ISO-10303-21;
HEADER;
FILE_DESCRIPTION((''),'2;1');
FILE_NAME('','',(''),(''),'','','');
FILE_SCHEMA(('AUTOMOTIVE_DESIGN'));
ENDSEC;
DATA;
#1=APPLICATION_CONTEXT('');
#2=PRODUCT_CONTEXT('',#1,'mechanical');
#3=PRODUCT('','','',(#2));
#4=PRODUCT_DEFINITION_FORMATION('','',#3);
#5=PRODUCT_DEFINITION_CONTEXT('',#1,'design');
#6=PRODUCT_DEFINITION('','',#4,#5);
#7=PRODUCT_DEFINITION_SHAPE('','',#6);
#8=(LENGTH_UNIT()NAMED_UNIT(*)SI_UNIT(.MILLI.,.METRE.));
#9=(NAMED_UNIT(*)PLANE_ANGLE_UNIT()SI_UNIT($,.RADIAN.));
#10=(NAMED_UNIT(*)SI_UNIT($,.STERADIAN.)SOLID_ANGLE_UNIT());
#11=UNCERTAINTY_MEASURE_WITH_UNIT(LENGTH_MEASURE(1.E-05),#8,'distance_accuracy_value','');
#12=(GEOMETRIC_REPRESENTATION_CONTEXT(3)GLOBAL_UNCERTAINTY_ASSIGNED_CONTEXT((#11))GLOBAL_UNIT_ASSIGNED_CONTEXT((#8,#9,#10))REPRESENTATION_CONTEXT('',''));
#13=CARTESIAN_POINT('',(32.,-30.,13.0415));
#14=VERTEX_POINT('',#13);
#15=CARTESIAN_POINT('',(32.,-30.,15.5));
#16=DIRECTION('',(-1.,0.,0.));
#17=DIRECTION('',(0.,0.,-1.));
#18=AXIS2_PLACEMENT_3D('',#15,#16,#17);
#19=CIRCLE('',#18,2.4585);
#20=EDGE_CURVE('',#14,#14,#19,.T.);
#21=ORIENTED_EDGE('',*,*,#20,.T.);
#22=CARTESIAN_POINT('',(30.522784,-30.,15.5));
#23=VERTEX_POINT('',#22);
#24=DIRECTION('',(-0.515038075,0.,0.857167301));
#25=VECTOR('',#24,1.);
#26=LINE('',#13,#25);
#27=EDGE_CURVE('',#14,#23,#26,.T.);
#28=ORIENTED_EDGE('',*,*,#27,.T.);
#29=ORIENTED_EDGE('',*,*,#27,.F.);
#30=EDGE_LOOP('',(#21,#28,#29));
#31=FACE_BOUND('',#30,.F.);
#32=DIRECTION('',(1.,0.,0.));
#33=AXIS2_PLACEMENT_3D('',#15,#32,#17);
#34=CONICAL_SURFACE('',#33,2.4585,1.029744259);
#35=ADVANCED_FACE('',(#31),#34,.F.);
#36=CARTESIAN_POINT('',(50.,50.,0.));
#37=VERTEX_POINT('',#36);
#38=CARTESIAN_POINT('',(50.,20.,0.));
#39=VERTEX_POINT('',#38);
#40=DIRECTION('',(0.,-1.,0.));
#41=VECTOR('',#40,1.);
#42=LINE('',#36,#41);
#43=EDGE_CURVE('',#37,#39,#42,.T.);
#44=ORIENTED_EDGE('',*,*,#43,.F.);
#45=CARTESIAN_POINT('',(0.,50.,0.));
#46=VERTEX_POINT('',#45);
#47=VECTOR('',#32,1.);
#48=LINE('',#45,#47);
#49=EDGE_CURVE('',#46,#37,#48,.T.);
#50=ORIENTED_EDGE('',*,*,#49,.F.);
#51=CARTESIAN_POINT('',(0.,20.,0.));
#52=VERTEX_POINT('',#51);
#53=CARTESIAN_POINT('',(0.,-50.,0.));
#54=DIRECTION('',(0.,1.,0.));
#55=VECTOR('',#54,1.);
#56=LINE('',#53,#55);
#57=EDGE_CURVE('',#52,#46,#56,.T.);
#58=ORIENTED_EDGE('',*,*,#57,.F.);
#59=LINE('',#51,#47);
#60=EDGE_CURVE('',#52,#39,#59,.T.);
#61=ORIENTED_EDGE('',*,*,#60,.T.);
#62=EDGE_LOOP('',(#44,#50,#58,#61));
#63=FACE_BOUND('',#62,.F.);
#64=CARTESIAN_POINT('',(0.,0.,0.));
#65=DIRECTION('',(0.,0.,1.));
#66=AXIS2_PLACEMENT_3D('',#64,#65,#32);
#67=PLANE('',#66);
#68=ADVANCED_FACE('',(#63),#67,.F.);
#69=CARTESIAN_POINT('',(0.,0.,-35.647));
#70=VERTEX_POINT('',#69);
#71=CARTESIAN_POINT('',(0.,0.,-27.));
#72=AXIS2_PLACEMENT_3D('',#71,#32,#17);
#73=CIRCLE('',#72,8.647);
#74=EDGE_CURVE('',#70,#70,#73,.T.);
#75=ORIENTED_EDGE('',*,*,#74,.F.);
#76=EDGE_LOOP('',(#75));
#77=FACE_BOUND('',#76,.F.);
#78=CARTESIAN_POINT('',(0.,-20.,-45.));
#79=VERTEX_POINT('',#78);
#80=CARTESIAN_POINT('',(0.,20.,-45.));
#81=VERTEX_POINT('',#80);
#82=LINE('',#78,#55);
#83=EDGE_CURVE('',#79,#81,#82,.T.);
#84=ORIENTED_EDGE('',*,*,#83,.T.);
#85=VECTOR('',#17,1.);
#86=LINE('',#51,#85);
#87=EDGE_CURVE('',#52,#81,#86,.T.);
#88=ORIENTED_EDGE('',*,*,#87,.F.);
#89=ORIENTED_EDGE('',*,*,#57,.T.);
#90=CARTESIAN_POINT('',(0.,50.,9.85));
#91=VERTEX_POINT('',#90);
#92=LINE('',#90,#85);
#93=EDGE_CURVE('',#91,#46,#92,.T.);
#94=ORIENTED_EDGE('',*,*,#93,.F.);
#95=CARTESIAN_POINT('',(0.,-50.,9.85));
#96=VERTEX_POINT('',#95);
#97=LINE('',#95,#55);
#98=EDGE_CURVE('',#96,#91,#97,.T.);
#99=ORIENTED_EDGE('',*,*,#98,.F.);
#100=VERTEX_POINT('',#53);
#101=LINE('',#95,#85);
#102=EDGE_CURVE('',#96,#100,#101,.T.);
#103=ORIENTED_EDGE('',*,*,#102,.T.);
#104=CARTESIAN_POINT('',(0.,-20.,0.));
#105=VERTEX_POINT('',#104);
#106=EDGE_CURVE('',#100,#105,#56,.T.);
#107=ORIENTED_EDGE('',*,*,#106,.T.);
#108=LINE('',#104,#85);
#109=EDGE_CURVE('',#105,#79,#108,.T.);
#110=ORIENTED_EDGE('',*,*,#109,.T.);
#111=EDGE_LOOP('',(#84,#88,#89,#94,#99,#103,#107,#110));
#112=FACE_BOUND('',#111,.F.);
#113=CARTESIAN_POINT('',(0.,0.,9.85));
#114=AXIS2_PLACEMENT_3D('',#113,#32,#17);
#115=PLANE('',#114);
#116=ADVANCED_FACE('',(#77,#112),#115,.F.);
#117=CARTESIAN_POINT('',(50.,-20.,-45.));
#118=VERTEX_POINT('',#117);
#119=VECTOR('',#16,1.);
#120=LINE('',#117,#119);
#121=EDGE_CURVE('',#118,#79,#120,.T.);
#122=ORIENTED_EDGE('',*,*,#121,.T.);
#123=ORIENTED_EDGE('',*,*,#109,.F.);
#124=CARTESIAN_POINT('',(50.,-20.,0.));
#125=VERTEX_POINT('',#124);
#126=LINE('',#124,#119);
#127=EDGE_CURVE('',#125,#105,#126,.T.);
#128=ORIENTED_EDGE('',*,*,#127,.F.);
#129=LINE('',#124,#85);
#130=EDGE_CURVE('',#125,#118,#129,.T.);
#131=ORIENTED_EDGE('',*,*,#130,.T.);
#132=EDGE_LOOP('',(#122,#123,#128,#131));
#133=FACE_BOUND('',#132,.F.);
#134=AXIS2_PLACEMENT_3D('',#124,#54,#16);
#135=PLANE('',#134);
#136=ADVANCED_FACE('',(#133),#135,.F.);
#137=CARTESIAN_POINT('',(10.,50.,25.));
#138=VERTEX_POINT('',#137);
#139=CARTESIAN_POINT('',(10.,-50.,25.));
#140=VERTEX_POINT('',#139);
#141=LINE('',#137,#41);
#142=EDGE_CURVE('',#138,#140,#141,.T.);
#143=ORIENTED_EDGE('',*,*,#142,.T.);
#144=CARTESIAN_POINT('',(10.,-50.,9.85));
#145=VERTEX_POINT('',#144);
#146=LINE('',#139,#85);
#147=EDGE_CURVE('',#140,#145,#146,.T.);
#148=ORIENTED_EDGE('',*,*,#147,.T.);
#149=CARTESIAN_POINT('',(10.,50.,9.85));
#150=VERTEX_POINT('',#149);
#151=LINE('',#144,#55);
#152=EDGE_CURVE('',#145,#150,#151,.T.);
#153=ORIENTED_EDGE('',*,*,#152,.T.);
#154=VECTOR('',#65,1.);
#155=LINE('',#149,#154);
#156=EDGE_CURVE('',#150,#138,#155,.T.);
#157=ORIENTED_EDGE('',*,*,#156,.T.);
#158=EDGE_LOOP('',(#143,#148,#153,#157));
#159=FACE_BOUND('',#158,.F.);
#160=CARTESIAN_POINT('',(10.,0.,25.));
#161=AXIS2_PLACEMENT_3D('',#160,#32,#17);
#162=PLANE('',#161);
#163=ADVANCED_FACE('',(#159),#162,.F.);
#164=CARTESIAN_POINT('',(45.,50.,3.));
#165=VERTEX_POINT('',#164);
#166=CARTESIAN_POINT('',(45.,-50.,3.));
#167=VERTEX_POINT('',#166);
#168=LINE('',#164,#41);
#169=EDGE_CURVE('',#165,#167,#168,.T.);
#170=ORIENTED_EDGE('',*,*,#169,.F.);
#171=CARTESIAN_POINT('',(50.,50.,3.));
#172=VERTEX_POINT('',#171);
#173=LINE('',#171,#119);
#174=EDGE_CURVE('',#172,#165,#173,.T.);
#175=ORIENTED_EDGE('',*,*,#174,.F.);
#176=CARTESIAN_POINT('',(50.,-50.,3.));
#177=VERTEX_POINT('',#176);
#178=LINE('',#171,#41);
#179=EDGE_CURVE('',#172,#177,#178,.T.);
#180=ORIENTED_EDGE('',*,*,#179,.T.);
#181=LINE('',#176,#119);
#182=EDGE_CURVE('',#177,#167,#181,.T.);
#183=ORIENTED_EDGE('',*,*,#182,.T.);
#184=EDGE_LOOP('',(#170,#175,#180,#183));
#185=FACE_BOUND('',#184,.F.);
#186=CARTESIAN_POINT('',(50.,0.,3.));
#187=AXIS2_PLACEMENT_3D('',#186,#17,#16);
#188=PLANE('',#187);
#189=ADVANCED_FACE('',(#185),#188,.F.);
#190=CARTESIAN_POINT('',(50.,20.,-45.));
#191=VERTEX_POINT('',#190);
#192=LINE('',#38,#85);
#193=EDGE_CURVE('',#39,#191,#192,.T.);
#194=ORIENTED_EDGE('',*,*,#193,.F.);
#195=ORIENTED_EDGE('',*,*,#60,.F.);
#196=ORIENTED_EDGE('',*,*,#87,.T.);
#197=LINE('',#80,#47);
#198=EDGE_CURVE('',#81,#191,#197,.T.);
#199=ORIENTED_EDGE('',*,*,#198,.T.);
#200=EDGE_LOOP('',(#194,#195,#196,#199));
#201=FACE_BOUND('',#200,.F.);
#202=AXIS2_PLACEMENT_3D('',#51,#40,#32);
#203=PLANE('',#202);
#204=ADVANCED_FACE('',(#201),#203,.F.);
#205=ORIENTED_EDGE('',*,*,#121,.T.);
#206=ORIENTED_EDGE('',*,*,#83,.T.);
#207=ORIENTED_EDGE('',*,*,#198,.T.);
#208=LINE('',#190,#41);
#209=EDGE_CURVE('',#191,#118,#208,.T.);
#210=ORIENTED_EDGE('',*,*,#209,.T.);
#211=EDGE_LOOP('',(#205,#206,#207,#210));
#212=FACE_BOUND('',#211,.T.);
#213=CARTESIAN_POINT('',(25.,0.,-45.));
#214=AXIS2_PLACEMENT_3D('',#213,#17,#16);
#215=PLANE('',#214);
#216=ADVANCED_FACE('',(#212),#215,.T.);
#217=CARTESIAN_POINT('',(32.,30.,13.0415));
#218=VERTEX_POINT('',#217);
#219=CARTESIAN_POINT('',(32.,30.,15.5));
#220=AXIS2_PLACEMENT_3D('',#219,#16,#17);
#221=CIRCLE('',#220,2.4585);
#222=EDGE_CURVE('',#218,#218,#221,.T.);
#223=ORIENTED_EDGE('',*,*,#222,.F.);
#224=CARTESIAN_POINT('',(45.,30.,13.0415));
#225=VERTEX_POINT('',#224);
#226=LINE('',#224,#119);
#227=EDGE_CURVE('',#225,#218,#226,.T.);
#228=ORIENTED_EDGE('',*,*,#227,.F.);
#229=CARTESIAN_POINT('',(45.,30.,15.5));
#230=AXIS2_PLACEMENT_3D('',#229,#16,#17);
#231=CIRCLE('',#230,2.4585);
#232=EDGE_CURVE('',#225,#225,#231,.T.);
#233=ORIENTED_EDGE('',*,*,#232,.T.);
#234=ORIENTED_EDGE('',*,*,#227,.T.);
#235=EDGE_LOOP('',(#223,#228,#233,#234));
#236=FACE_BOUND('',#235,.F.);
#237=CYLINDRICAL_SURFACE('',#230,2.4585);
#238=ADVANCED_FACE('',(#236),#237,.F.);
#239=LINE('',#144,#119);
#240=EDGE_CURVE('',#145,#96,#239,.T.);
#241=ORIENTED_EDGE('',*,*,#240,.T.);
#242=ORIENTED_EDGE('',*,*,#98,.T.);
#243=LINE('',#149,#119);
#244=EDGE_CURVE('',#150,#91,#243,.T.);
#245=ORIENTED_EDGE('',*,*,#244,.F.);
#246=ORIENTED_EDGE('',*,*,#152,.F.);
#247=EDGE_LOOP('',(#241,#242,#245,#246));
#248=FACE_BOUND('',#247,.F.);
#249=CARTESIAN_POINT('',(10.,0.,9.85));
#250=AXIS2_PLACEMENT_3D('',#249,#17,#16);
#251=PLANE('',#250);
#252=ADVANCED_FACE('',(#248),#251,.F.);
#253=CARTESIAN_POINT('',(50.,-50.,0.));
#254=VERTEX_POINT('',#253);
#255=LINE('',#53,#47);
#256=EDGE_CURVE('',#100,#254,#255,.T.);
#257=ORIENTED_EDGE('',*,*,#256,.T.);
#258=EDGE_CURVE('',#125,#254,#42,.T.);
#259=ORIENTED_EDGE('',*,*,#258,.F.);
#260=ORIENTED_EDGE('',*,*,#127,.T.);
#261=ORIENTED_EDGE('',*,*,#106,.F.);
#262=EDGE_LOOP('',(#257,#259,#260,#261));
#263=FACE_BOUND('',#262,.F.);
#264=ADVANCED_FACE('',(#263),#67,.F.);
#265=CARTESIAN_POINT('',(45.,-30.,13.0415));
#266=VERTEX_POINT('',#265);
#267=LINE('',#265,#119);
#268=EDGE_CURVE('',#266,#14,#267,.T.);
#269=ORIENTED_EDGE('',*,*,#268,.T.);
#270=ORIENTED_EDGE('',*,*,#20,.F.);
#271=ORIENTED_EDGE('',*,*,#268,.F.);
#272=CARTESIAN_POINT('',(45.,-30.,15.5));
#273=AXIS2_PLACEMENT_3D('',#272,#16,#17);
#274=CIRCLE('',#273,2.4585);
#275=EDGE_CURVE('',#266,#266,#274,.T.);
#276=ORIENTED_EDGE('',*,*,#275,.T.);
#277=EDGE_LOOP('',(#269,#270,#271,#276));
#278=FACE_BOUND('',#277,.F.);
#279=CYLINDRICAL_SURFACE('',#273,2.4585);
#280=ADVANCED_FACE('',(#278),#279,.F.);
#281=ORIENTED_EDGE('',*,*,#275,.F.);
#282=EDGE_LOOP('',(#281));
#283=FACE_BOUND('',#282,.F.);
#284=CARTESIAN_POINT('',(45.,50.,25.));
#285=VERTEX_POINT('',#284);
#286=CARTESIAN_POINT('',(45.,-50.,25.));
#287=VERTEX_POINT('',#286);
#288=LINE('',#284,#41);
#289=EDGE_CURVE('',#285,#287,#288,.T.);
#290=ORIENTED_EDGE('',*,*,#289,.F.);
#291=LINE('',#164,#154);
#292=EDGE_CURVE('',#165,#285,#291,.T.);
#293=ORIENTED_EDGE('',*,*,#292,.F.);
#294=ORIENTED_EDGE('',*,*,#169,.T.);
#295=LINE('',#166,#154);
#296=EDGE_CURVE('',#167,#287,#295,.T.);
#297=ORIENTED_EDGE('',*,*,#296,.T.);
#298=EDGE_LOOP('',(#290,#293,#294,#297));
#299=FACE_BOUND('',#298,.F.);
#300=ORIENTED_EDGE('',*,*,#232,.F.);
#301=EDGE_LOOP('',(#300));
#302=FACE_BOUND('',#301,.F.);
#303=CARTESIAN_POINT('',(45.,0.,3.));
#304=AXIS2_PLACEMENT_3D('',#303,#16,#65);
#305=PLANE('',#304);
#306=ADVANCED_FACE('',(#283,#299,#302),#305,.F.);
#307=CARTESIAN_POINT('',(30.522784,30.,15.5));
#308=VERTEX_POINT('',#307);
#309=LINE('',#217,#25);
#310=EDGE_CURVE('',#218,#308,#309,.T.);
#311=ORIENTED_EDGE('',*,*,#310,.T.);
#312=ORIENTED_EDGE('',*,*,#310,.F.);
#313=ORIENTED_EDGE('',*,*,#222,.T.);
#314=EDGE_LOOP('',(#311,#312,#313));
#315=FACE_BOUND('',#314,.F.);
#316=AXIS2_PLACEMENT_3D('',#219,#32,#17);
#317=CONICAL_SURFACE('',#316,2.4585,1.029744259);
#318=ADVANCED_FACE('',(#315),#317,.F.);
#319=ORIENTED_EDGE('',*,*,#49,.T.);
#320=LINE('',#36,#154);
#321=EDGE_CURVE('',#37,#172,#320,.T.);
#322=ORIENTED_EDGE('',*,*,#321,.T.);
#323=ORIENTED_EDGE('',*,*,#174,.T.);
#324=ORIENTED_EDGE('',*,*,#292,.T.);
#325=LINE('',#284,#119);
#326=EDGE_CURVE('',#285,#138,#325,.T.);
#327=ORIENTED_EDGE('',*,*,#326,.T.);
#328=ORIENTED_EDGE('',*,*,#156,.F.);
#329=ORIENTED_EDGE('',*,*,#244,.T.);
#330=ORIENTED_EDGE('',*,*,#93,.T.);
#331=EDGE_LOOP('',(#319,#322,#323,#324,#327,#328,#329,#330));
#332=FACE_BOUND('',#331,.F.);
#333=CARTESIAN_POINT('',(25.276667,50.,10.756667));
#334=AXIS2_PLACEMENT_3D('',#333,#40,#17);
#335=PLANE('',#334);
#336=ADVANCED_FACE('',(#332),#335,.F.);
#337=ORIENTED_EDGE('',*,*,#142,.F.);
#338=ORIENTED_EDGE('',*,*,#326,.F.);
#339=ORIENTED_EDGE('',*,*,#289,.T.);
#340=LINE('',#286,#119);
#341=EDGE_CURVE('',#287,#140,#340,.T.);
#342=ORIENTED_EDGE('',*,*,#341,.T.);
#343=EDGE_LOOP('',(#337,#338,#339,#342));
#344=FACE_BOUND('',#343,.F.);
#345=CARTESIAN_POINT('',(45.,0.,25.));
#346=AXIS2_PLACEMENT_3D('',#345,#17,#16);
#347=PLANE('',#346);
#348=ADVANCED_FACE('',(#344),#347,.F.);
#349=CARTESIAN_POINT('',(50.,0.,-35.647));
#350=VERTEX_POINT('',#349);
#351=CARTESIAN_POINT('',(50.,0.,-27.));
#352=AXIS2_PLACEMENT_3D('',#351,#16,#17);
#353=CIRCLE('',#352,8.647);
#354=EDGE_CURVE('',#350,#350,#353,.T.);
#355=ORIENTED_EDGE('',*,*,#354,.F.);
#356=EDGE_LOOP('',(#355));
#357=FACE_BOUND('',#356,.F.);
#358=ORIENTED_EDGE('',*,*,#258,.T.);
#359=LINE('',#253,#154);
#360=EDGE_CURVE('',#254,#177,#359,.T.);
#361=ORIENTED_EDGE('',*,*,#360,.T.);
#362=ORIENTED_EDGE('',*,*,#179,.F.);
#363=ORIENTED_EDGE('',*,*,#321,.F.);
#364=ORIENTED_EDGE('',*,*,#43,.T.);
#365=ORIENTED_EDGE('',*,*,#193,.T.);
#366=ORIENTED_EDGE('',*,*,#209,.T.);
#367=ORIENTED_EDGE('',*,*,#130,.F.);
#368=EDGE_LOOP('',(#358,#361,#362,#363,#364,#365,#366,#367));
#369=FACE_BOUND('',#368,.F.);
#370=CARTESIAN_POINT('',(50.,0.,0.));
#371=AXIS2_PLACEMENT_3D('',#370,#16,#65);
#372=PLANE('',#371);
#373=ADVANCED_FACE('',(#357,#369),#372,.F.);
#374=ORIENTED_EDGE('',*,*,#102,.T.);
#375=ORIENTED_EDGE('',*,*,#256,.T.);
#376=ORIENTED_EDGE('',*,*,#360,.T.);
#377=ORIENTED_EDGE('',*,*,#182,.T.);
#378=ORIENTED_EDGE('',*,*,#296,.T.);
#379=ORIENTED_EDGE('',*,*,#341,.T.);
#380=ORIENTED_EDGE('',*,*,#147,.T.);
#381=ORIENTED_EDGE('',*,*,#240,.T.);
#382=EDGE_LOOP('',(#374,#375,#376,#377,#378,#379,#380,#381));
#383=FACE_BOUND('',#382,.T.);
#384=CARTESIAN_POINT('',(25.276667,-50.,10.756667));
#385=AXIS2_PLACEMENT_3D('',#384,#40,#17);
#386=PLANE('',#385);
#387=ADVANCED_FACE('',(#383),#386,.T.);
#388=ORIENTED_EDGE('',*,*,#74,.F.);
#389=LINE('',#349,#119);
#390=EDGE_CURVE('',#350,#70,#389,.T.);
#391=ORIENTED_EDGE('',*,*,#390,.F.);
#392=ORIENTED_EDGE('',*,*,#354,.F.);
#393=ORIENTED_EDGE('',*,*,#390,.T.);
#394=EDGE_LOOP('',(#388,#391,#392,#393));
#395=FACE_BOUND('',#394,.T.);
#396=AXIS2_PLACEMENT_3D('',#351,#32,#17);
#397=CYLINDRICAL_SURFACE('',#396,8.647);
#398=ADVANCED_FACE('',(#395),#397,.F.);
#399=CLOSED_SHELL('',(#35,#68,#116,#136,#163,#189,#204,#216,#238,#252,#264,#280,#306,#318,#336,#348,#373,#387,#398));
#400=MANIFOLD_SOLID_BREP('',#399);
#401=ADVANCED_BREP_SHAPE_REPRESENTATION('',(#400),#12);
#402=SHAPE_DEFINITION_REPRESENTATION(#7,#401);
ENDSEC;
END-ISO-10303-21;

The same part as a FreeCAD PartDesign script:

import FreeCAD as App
import Part
import Sketcher

V = App.Vector

doc = App.newDocument("Part")
body = doc.addObject("PartDesign::Body", "Body")

# Sketch on XZ plane
sketch1 = body.newObject("Sketcher::SketchObject", "Sketch")
sketch1.AttachmentSupport = (doc.getObject("XZ_Plane"), [""])
sketch1.MapMode = "FlatFace"
sketch1.addGeometry([
    Part.LineSegment(V(0, 9.8, 0), V(0, 0, 0)),  # 0
    Part.LineSegment(V(0, 0, 0), V(50, 0, 0)),  # 1
    Part.LineSegment(V(50, 0, 0), V(50, 3, 0)),  # 2
    Part.LineSegment(V(50, 3, 0), V(45, 3, 0)),  # 3
    Part.LineSegment(V(45, 3, 0), V(45, 25, 0)),  # 4
    Part.LineSegment(V(45, 25, 0), V(10, 25, 0)),  # 5
    Part.LineSegment(V(10, 25, 0), V(10, 9.8, 0)),  # 6
    Part.LineSegment(V(10, 9.8, 0), V(0, 9.8, 0)),  # 7
], False)
sketch1.addConstraint([
    Sketcher.Constraint("Coincident", 0, 2, 1, 1),
    Sketcher.Constraint("Coincident", 1, 2, 2, 1),
    Sketcher.Constraint("Coincident", 2, 2, 3, 1),
    Sketcher.Constraint("Coincident", 3, 2, 4, 1),
    Sketcher.Constraint("Coincident", 4, 2, 5, 1),
    Sketcher.Constraint("Coincident", 5, 2, 6, 1),
    Sketcher.Constraint("Coincident", 6, 2, 7, 1),
    Sketcher.Constraint("Coincident", 7, 2, 0, 1),
    Sketcher.Constraint("Vertical", 0),
    Sketcher.Constraint("Horizontal", 1),
    Sketcher.Constraint("Vertical", 2),
    Sketcher.Constraint("Horizontal", 3),
    Sketcher.Constraint("Vertical", 4),
    Sketcher.Constraint("Horizontal", 5),
    Sketcher.Constraint("Vertical", 6),
    Sketcher.Constraint("Horizontal", 7),
    Sketcher.Constraint("Coincident", 0, 2, -1, 1),
    Sketcher.Constraint("DistanceX", 1, 1, 1, 2, 50.0),
    Sketcher.Constraint("DistanceX", 3, 2, 3, 1, 5.0),
    Sketcher.Constraint("DistanceX", 5, 2, 5, 1, 35.0),
    Sketcher.Constraint("DistanceY", 2, 1, 2, 2, 3.0),
    Sketcher.Constraint("DistanceY", 4, 1, 4, 2, 22.0),
    Sketcher.Constraint("DistanceY", 0, 2, 0, 1, 9.85),
])
pad1 = body.newObject("PartDesign::Pad", "Pad")
pad1.Profile = sketch1
pad1.Length = 100
pad1.Midplane = True

# Sketch on XY plane
sketch2 = body.newObject("Sketcher::SketchObject", "Sketch001")
sketch2.AttachmentSupport = (doc.getObject("XY_Plane"), [""])
sketch2.MapMode = "FlatFace"
sketch2.addGeometry([
    Part.LineSegment(V(0, -20, 0), V(0, 20, 0)),
    Part.LineSegment(V(0, 20, 0), V(50, 20, 0)),
    Part.LineSegment(V(50, 20, 0), V(50, -20, 0)),
    Part.LineSegment(V(50, -20, 0), V(0, -20, 0)),
], False)
sketch2.addConstraint([
    Sketcher.Constraint("Coincident", 0, 2, 1, 1),
    Sketcher.Constraint("Coincident", 1, 2, 2, 1),
    Sketcher.Constraint("Coincident", 2, 2, 3, 1),
    Sketcher.Constraint("Coincident", 3, 2, 0, 1),
    Sketcher.Constraint("Vertical", 0),
    Sketcher.Constraint("Horizontal", 1),
    Sketcher.Constraint("Vertical", 2),
    Sketcher.Constraint("Horizontal", 3),
    Sketcher.Constraint("Symmetric", 0, 2, 3, 2, -1, 1),
    Sketcher.Constraint("DistanceX", 1, 1, 1, 2, 50.0),
    Sketcher.Constraint("DistanceY", 0, 1, 0, 2, 40.0),
])
pad2 = body.newObject("PartDesign::Pad", "Pad001")
pad2.Profile = sketch2
pad2.Length = 45
pad2.Reversed = True

# Sketch on YZ plane
sketch3 = body.newObject("Sketcher::SketchObject", "Sketch002")
sketch3.AttachmentSupport = (doc.getObject("YZ_Plane"), [""])
sketch3.MapMode = "FlatFace"
sketch3.AttachmentOffset = App.Placement(V(0, 0, 50), App.Rotation())
sketch3.addGeometry(Part.Circle(V(0, -27, 0), V(0, 0, 1), 9), False)
sketch3.addConstraint([
    Sketcher.Constraint("PointOnObject", 0, 3, -2),
    Sketcher.Constraint("Diameter", 0, 17.294),
    Sketcher.Constraint("DistanceY", 0, 3, -1, 1, 27.0),
])
doc.recompute()
hole = body.newObject("PartDesign::Hole", "Hole")
hole.Profile = sketch3
hole.ThreadType = "None"
hole.Diameter = 17.294
hole.DepthType = "ThroughAll"

# Sketch on YZ plane
sketch4 = body.newObject("Sketcher::SketchObject", "Sketch003")
sketch4.AttachmentSupport = (doc.getObject("YZ_Plane"), [""])
sketch4.MapMode = "FlatFace"
sketch4.AttachmentOffset = App.Placement(V(0, 0, 45), App.Rotation())
sketch4.addGeometry(Part.Circle(V(-30, 15.5, 0), V(0, 0, 1), 2.5), False)
sketch4.addConstraint([
    Sketcher.Constraint("Diameter", 0, 4.917),
    Sketcher.Constraint("DistanceX", 0, 3, -1, 1, 30.0),
    Sketcher.Constraint("DistanceY", -1, 1, 0, 3, 15.5),
])
doc.recompute()
hole2 = body.newObject("PartDesign::Hole", "Hole001")
hole2.Profile = sketch4
hole2.ThreadType = "None"
hole2.Diameter = 4.917
hole2.DepthType = "Dimension"
hole2.Depth = 13
hole2.DrillPoint = "Angled"
hole2.DrillPointAngle = 118

# Sketch on YZ plane
sketch5 = body.newObject("Sketcher::SketchObject", "Sketch004")
sketch5.AttachmentSupport = (doc.getObject("YZ_Plane"), [""])
sketch5.MapMode = "FlatFace"
sketch5.AttachmentOffset = App.Placement(V(0, 0, 45), App.Rotation())
sketch5.addGeometry(Part.Circle(V(30, 15.5, 0), V(0, 0, 1), 2.5), False)
sketch5.addConstraint([
    Sketcher.Constraint("Diameter", 0, 4.917),
    Sketcher.Constraint("DistanceX", -1, 1, 0, 3, 30.0),
    Sketcher.Constraint("DistanceY", -1, 1, 0, 3, 15.5),
])
doc.recompute()
hole3 = body.newObject("PartDesign::Hole", "Hole002")
hole3.Profile = sketch5
hole3.ThreadType = "None"
hole3.Diameter = 4.917
hole3.DepthType = "Dimension"
hole3.Depth = 13
hole3.DrillPoint = "Angled"
hole3.DrillPointAngle = 118

doc.recompute()
